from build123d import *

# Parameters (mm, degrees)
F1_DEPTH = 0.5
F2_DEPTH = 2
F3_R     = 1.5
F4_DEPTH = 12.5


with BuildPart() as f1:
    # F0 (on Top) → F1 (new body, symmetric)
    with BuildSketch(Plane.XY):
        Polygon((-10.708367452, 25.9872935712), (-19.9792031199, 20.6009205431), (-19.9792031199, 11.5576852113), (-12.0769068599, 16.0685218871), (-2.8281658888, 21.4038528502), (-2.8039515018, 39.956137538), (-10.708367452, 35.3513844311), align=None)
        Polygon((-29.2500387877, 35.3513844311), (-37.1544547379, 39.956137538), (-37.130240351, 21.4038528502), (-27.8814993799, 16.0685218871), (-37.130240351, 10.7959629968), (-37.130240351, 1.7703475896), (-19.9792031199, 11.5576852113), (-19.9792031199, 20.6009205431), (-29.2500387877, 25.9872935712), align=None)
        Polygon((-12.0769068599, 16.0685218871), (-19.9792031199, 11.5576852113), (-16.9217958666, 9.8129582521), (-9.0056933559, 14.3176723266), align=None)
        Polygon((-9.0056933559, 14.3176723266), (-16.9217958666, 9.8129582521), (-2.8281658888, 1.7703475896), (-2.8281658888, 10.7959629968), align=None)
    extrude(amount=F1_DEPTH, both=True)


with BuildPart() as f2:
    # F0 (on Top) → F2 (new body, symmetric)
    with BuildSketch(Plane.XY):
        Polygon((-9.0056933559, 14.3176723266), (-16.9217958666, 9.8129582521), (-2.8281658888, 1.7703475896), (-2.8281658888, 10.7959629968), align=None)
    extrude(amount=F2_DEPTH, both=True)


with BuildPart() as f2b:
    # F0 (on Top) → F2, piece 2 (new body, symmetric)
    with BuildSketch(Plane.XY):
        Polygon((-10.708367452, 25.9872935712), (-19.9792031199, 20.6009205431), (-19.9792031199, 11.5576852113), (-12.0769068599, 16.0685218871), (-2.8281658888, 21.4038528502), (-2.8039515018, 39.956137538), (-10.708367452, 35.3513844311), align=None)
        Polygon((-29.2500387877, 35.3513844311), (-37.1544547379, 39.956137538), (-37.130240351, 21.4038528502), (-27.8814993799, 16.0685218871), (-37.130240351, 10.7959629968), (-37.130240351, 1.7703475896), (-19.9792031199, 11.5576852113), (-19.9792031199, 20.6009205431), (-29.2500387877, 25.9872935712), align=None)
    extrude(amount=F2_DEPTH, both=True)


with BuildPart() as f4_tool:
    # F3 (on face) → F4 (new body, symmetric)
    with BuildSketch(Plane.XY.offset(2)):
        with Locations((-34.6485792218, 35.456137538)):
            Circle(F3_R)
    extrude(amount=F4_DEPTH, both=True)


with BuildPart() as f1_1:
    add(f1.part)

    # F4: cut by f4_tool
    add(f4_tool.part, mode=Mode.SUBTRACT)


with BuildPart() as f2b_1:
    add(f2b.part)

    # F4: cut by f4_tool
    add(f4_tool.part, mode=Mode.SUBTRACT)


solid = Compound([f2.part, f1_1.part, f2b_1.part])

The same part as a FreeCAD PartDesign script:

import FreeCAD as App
import Part
import Sketcher

V = App.Vector
Q = App.Units.Quantity

doc = App.newDocument("Part")
params = doc.addObject("Spreadsheet::Sheet", "Params")
for row, (alias, value) in enumerate([
    ("pad1_length", "1 mm"),
    ("pad2_length", "4 mm"),
    ("pad3_length", "4 mm"),
    ("sketch4_diameter", "3 mm"),
    ("pad4_length", "25 mm"),
], start=1):
    params.set(f"A{row}", alias)
    params.set(f"B{row}", "=" + value)
    params.setAlias(f"B{row}", alias)

body = doc.addObject("PartDesign::Body", "Body")

# Sketch on XY plane
sketch1 = body.newObject("Sketcher::SketchObject", "Sketch")
sketch1.AttachmentSupport = (doc.getObject("XY_Plane"), [""])
sketch1.MapMode = "FlatFace"
sketch1.addGeometry([
    Part.LineSegment(V(-10.7, 26, 0), V(-20, 20.6, 0)),  # 0
    Part.LineSegment(V(-20, 20.6, 0), V(-29.3, 26, 0)),  # 1
    Part.LineSegment(V(-29.3, 26, 0), V(-29.3, 35.4, 0)),  # 2
    Part.LineSegment(V(-29.3, 35.4, 0), V(-37.2, 40, 0)),  # 3
    Part.LineSegment(V(-37.2, 40, 0), V(-37.1, 21.4, 0)),  # 4
    Part.LineSegment(V(-37.1, 21.4, 0), V(-27.9, 16.1, 0)),  # 5
    Part.LineSegment(V(-27.9, 16.1, 0), V(-37.1, 10.8, 0)),  # 6
    Part.LineSegment(V(-37.1, 10.8, 0), V(-37.1, 1.8, 0)),  # 7
    Part.LineSegment(V(-37.1, 1.8, 0), V(-20, 11.6, 0)),  # 8
    Part.LineSegment(V(-20, 11.6, 0), V(-16.9, 9.8, 0)),  # 9
    Part.LineSegment(V(-16.9, 9.8, 0), V(-2.8, 1.8, 0)),  # 10
    Part.LineSegment(V(-2.8, 1.8, 0), V(-2.8, 10.8, 0)),  # 11
    Part.LineSegment(V(-2.8, 10.8, 0), V(-9, 14.3, 0)),  # 12
    Part.LineSegment(V(-9, 14.3, 0), V(-12.1, 16.1, 0)),  # 13
    Part.LineSegment(V(-12.1, 16.1, 0), V(-2.8, 21.4, 0)),  # 14
    Part.LineSegment(V(-2.8, 21.4, 0), V(-2.8, 40, 0)),  # 15
    Part.LineSegment(V(-2.8, 40, 0), V(-10.7, 35.4, 0)),  # 16
    Part.LineSegment(V(-10.7, 35.4, 0), V(-10.7, 26, 0)),  # 17
], False)
sketch1.addConstraint([
    Sketcher.Constraint("Coincident", 0, 2, 1, 1),
    Sketcher.Constraint("Coincident", 1, 2, 2, 1),
    Sketcher.Constraint("Coincident", 2, 2, 3, 1),
    Sketcher.Constraint("Coincident", 3, 2, 4, 1),
    Sketcher.Constraint("Coincident", 4, 2, 5, 1),
    Sketcher.Constraint("Coincident", 5, 2, 6, 1),
    Sketcher.Constraint("Coincident", 6, 2, 7, 1),
    Sketcher.Constraint("Coincident", 7, 2, 8, 1),
    Sketcher.Constraint("Coincident", 8, 2, 9, 1),
    Sketcher.Constraint("Coincident", 9, 2, 10, 1),
    Sketcher.Constraint("Coincident", 10, 2, 11, 1),
    Sketcher.Constraint("Coincident", 11, 2, 12, 1),
    Sketcher.Constraint("Coincident", 12, 2, 13, 1),
    Sketcher.Constraint("Coincident", 13, 2, 14, 1),
    Sketcher.Constraint("Coincident", 14, 2, 15, 1),
    Sketcher.Constraint("Coincident", 15, 2, 16, 1),
    Sketcher.Constraint("Coincident", 16, 2, 17, 1),
    Sketcher.Constraint("Coincident", 17, 2, 0, 1),
    Sketcher.Constraint("Vertical", 2),
    Sketcher.Constraint("Vertical", 7),
    Sketcher.Constraint("Vertical", 11),
    Sketcher.Constraint("Vertical", 17),
    Sketcher.Constraint("Parallel", 9, 10),
    Sketcher.Constraint("Parallel", 12, 13),
    Sketcher.Constraint("Horizontal", 7, 2, 10, 2),
    Sketcher.Constraint("Horizontal", 6, 2, 11, 2),
    Sketcher.Constraint("Horizontal", 5, 2, 13, 2),
    Sketcher.Constraint("Horizontal", 4, 2, 14, 2),
    Sketcher.Constraint("Horizontal", 3, 2, 15, 2),
    Sketcher.Constraint("Horizontal", 2, 2, 16, 2),
    Sketcher.Constraint("Horizontal", 1, 2, 17, 2),
    Sketcher.Constraint("Vertical", 4, 2, 6, 2),
    Sketcher.Constraint("Vertical", 0, 2, 8, 2),
    Sketcher.Constraint("Vertical", 11, 2, 14, 2),
    Sketcher.Constraint("Equal", 0, 1),
    Sketcher.Constraint("Equal", 5, 14),
    Sketcher.Constraint("Equal", 3, 16),
    Sketcher.Constraint("Distance", 4, Q("18.5523 mm")),
    Sketcher.Constraint("Distance", 9, Q("3.5202 mm")),
    Sketcher.Constraint("DistanceY", 2, 1, 2, 2, Q("9.364091 mm")),
    Sketcher.Constraint("DistanceX", 5, 2, -1, 1, Q("27.881499 mm")),
    Sketcher.Constraint("DistanceX", 4, 2, 1, 2, Q("7.880202 mm")),
    Sketcher.Constraint("DistanceY", 5, 2, 0, 2, Q("4.532399 mm")),
    Sketcher.Constraint("DistanceX", 16, 2, 14, 2, Q("7.880202 mm")),
    Sketcher.Constraint("Distance", 3, Q("9.147871 mm")),
    Sketcher.Constraint("Distance", 5, Q("10.677311 mm")),
    Sketcher.Constraint("DistanceY", 7, 2, 7, 1, Q("9.025615 mm")),
    Sketcher.Constraint("DistanceY", -1, 1, 0, 2, Q("20.600921 mm")),
    Sketcher.Constraint("DistanceX", 1, 2, -1, 1, Q("29.250039 mm")),
    Sketcher.Constraint("DistanceY", -1, 1, 9, 2, Q("9.812958 mm")),
    Sketcher.Constraint("DistanceX", 15, 2, -1, 1, Q("2.803952 mm")),
    Sketcher.Constraint("DistanceX", 3, 2, 0, 2, Q("17.175252 mm")),
    Sketcher.Constraint("DistanceY", 6, 2, 4, 2, Q("10.60789 mm")),
    Sketcher.Constraint("DistanceY", 11, 2, 12, 2, Q("3.521709 mm")),
])
pad1 = body.newObject("PartDesign::Pad", "Pad")
pad1.Profile = sketch1
pad1.setExpression("Length", "Params.pad1_length")
pad1.Midplane = True
body2 = doc.addObject("PartDesign::Body", "Body001")

# Sketch on XY plane
sketch2 = body2.newObject("Sketcher::SketchObject", "Sketch001")
sketch2.AttachmentSupport = (doc.getObject("XY_Plane001"), [""])
sketch2.MapMode = "FlatFace"
sketch2.addGeometry([
    Part.LineSegment(V(-9, 14, 0), V(-17, 10, 0)),
    Part.LineSegment(V(-17, 10, 0), V(-3, 2, 0)),
    Part.LineSegment(V(-3, 2, 0), V(-3, 11, 0)),
    Part.LineSegment(V(-3, 11, 0), V(-9, 14, 0)),
], False)
sketch2.addConstraint([
    Sketcher.Constraint("Coincident", 0, 2, 1, 1),
    Sketcher.Constraint("Coincident", 1, 2, 2, 1),
    Sketcher.Constraint("Coincident", 2, 2, 3, 1),
    Sketcher.Constraint("Coincident", 3, 2, 0, 1),
    Sketcher.Constraint("Vertical", 2),
    Sketcher.Constraint("Distance", 0, Q("9.10808 mm")),
    Sketcher.Constraint("DistanceY", 2, 1, 2, 2, Q("9.025615 mm")),
    Sketcher.Constraint("DistanceY", -1, 1, 0, 2, Q("9.812958 mm")),
    Sketcher.Constraint("DistanceX", 0, 2, 1, 2, Q("14.09363 mm")),
    Sketcher.Constraint("DistanceY", 1, 2, 0, 2, Q("8.042611 mm")),
    Sketcher.Constraint("DistanceY", 2, 2, 3, 2, Q("3.521709 mm")),
    Sketcher.Constraint("DistanceX", 0, 2, -1, 1, Q("16.921796 mm")),
])
pad2 = body2.newObject("PartDesign::Pad", "Pad001")
pad2.Profile = sketch2
pad2.setExpression("Length", "Params.pad2_length")
pad2.Midplane = True
body3 = doc.addObject("PartDesign::Body", "Body002")

# Sketch on XY plane
sketch3 = body3.newObject("Sketcher::SketchObject", "Sketch002")
sketch3.AttachmentSupport = (doc.getObject("XY_Plane002"), [""])
sketch3.MapMode = "FlatFace"
sketch3.addGeometry([
    Part.LineSegment(V(-11, 26, 0), V(-20, 21, 0)),  # 0
    Part.LineSegment(V(-20, 21, 0), V(-29, 26, 0)),  # 1
    Part.LineSegment(V(-29, 26, 0), V(-29, 35, 0)),  # 2
    Part.LineSegment(V(-29, 35, 0), V(-37, 40, 0)),  # 3
    Part.LineSegment(V(-37, 40, 0), V(-37, 21, 0)),  # 4
    Part.LineSegment(V(-37, 21, 0), V(-28, 16, 0)),  # 5
    Part.LineSegment(V(-28, 16, 0), V(-37, 11, 0)),  # 6
    Part.LineSegment(V(-37, 11, 0), V(-37, 2, 0)),  # 7
    Part.LineSegment(V(-37, 2, 0), V(-20, 12, 0)),  # 8
    Part.LineSegment(V(-20, 12, 0), V(-12, 16, 0)),  # 9
    Part.LineSegment(V(-12, 16, 0), V(-3, 21, 0)),  # 10
    Part.LineSegment(V(-3, 21, 0), V(-3, 40, 0)),  # 11
    Part.LineSegment(V(-3, 40, 0), V(-11, 35, 0)),  # 12
    Part.LineSegment(V(-11, 35, 0), V(-11, 26, 0)),  # 13
], False)
sketch3.addConstraint([
    Sketcher.Constraint("Coincident", 0, 2, 1, 1),
    Sketcher.Constraint("Coincident", 1, 2, 2, 1),
    Sketcher.Constraint("Coincident", 2, 2, 3, 1),
    Sketcher.Constraint("Coincident", 3, 2, 4, 1),
    Sketcher.Constraint("Coincident", 4, 2, 5, 1),
    Sketcher.Constraint("Coincident", 5, 2, 6, 1),
    Sketcher.Constraint("Coincident", 6, 2, 7, 1),
    Sketcher.Constraint("Coincident", 7, 2, 8, 1),
    Sketcher.Constraint("Coincident", 8, 2, 9, 1),
    Sketcher.Constraint("Coincident", 9, 2, 10, 1),
    Sketcher.Constraint("Coincident", 10, 2, 11, 1),
    Sketcher.Constraint("Coincident", 11, 2, 12, 1),
    Sketcher.Constraint("Coincident", 12, 2, 13, 1),
    Sketcher.Constraint("Coincident", 13, 2, 0, 1),
    Sketcher.Constraint("Vertical", 2),
    Sketcher.Constraint("Vertical", 7),
    Sketcher.Constraint("Vertical", 13),
    Sketcher.Constraint("Horizontal", 5, 2, 9, 2),
    Sketcher.Constraint("Horizontal", 4, 2, 10, 2),
    Sketcher.Constraint("Horizontal", 3, 2, 11, 2),
    Sketcher.Constraint("Horizontal", 2, 2, 12, 2),
    Sketcher.Constraint("Horizontal", 1, 2, 13, 2),
    Sketcher.Constraint("Vertical", 4, 2, 6, 2),
    Sketcher.Constraint("Vertical", 0, 2, 8, 2),
    Sketcher.Constraint("Equal", 0, 1),
    Sketcher.Constraint("Equal", 5, 10),
    Sketcher.Constraint("Equal", 3, 12),
    Sketcher.Constraint("Distance", 4, Q("18.5523 mm")),
    Sketcher.Constraint("DistanceY", 2, 1, 2, 2, Q("9.364091 mm")),
    Sketcher.Constraint("DistanceX", 5, 2, -1, 1, Q("27.881499 mm")),
    Sketcher.Constraint("DistanceX", 4, 2, 1, 2, Q("7.880202 mm")),
    Sketcher.Constraint("DistanceY", 5, 2, 0, 2, Q("4.532399 mm")),
    Sketcher.Constraint("DistanceX", 12, 2, 10, 2, Q("7.880202 mm")),
    Sketcher.Constraint("Distance", 3, Q("9.147871 mm")),
    Sketcher.Constraint("Distance", 5, Q("10.677311 mm")),
    Sketcher.Constraint("DistanceY", 7, 2, 7, 1, Q("9.025615 mm")),
    Sketcher.Constraint("DistanceY", -1, 1, 0, 2, Q("20.600921 mm")),
    Sketcher.Constraint("DistanceX", 1, 2, -1, 1, Q("29.250039 mm")),
    Sketcher.Constraint("DistanceX", 11, 2, -1, 1, Q("2.803952 mm")),
    Sketcher.Constraint("DistanceX", 3, 2, 0, 2, Q("17.175252 mm")),
    Sketcher.Constraint("DistanceY", 6, 2, 4, 2, Q("10.60789 mm")),
    Sketcher.Constraint("DistanceY", 8, 2, 1, 2, Q("14.429608 mm")),
])
pad3 = body3.newObject("PartDesign::Pad", "Pad002")
pad3.Profile = sketch3
pad3.setExpression("Length", "Params.pad3_length")
pad3.Midplane = True
body4 = doc.addObject("PartDesign::Body", "Body003")

# Sketch on XY plane
sketch4 = body4.newObject("Sketcher::SketchObject", "Sketch003")
sketch4.AttachmentSupport = (doc.getObject("XY_Plane003"), [""])
sketch4.MapMode = "FlatFace"
sketch4.AttachmentOffset = App.Placement(V(0, 0, 2), App.Rotation())
sketch4.addGeometry(Part.Circle(V(-34.6, 35.5, 0), V(0, 0, 1), 1.5), False)
sketch4.addConstraint([
    Sketcher.Constraint("Diameter", 0, Q("3 mm")),
    Sketcher.Constraint("DistanceX", 0, 3, -1, 1, Q("34.648579 mm")),
    Sketcher.Constraint("DistanceY", -1, 1, 0, 3, Q("35.456138 mm")),
])
sketch4.setExpression("Constraints[0]", "Params.sketch4_diameter")
pad4 = body4.newObject("PartDesign::Pad", "Pad003")
pad4.Profile = sketch4
pad4.setExpression("Length", "Params.pad4_length")
pad4.Midplane = True
doc.recompute()

body5 = doc.addObject("PartDesign::Body", "Body004")
body5.BaseFeature = body4
boolean = body.newObject("PartDesign::Boolean", "Boolean")
boolean.Type = "Cut"
boolean.addObjects([body5])
doc.recompute()

boolean2 = body3.newObject("PartDesign::Boolean", "Boolean001")
boolean2.Type = "Cut"
boolean2.addObjects([body4])

doc.recompute()
